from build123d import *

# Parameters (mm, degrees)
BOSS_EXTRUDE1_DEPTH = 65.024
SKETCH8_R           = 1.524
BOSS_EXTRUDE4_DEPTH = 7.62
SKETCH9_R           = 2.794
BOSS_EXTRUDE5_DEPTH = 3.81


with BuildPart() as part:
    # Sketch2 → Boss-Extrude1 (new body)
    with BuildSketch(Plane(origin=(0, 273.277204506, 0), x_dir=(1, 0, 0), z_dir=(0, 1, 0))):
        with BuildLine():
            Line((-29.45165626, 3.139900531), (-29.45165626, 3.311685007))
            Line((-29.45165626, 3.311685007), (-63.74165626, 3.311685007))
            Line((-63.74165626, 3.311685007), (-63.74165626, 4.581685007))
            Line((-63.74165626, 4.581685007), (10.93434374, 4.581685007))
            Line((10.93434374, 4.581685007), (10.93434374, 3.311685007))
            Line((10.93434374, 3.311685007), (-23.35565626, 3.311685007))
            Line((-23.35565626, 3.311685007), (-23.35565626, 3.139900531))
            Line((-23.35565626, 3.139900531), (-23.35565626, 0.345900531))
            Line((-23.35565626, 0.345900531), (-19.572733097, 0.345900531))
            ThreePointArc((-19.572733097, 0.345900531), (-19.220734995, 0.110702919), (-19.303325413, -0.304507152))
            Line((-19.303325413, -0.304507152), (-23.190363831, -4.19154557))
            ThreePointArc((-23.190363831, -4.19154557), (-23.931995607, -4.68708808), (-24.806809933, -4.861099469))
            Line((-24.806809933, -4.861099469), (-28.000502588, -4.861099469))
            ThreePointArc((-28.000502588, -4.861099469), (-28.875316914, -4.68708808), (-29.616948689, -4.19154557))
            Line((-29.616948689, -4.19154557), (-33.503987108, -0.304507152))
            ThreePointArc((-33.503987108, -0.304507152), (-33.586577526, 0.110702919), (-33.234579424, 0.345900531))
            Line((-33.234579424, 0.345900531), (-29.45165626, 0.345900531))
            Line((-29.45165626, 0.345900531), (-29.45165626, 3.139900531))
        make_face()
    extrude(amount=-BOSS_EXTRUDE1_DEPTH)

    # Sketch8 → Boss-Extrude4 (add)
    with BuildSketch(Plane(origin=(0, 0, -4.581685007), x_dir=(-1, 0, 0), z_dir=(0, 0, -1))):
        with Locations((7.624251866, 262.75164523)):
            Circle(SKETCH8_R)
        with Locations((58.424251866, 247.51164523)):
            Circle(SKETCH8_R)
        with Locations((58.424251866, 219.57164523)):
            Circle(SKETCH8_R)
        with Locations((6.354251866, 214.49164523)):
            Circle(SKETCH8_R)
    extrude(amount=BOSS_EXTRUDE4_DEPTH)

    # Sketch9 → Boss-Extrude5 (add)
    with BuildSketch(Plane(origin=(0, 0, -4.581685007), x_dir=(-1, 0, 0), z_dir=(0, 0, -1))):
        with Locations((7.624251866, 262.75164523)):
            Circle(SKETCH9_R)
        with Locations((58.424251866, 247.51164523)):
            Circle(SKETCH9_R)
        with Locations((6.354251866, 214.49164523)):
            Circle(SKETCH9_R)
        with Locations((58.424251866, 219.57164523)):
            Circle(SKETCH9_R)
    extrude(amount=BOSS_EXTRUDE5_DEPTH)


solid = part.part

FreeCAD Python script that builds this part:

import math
import FreeCAD as App
import Part
import Sketcher
from FreeCAD import Vector
Q = App.Units.Quantity

doc = App.newDocument("Part")
body = doc.addObject("PartDesign::Body", "Body")

# Sketch on XZ plane
sketch1 = body.newObject("Sketcher::SketchObject", "Sketch")
sketch1.AttachmentSupport = (doc.getObject("XZ_Plane"), [""])
sketch1.MapMode = "FlatFace"
sketch1.AttachmentOffset = App.Placement(Vector(0, 0, -273.277205), App.Rotation())
sketch1.addGeometry([
    Part.LineSegment(Vector(-63.74, -3.31, 0), Vector(-29.45, -3.31, 0)),  # 0
    Part.LineSegment(Vector(-29.45, -3.31, 0), Vector(-29.45, -0.35, 0)),  # 1
    Part.LineSegment(Vector(-29.45, -0.35, 0), Vector(-33.23, -0.35, 0)),  # 2
    Part.ArcOfCircle(Part.Circle(Vector(-33.23, 0.04, 0), Vector(0, 0, 1), 0.38), math.radians(135), math.radians(270)),  # 3
    Part.LineSegment(Vector(-33.5, 0.3, 0), Vector(-29.62, 4.19, 0)),  # 4
    Part.ArcOfCircle(Part.Circle(Vector(-28, 2.58, 0), Vector(0, 0, 1), 2.29), math.radians(90), math.radians(135)),  # 5
    Part.LineSegment(Vector(-28, 4.86, 0), Vector(-24.81, 4.86, 0)),  # 6
    Part.ArcOfCircle(Part.Circle(Vector(-24.81, 2.58, 0), Vector(0, 0, 1), 2.29), math.radians(45), math.radians(90)),  # 7
    Part.LineSegment(Vector(-23.19, 4.19, 0), Vector(-19.3, 0.3, 0)),  # 8
    Part.ArcOfCircle(Part.Circle(Vector(-19.57, 0.04, 0), Vector(0, 0, 1), 0.38), math.radians(-90), math.radians(45)),  # 9
    Part.LineSegment(Vector(-19.57, -0.35, 0), Vector(-23.36, -0.35, 0)),  # 10
    Part.LineSegment(Vector(-23.36, -0.35, 0), Vector(-23.36, -3.31, 0)),  # 11
    Part.LineSegment(Vector(-23.36, -3.31, 0), Vector(10.93, -3.31, 0)),  # 12
    Part.LineSegment(Vector(10.93, -3.31, 0), Vector(10.93, -4.58, 0)),  # 13
    Part.LineSegment(Vector(10.93, -4.58, 0), Vector(-63.74, -4.58, 0)),  # 14
    Part.LineSegment(Vector(-63.74, -4.58, 0), Vector(-63.74, -3.31, 0)),  # 15
], False)
sketch1.addConstraint([
    Sketcher.Constraint("Coincident", 0, 2, 1, 1),
    Sketcher.Constraint("Coincident", 1, 2, 2, 1),
    Sketcher.Constraint("Tangent", 2, 2, 3, 2),
    Sketcher.Constraint("Tangent", 3, 1, 4, 1),
    Sketcher.Constraint("Tangent", 4, 2, 5, 2),
    Sketcher.Constraint("Tangent", 5, 1, 6, 1),
    Sketcher.Constraint("Tangent", 6, 2, 7, 2),
    Sketcher.Constraint("Tangent", 7, 1, 8, 1),
    Sketcher.Constraint("Tangent", 8, 2, 9, 2),
    Sketcher.Constraint("Tangent", 9, 1, 10, 1),
    Sketcher.Constraint("Coincident", 10, 2, 11, 1),
    Sketcher.Constraint("Coincident", 11, 2, 12, 1),
    Sketcher.Constraint("Coincident", 12, 2, 13, 1),
    Sketcher.Constraint("Coincident", 13, 2, 14, 1),
    Sketcher.Constraint("Coincident", 14, 2, 15, 1),
    Sketcher.Constraint("Coincident", 15, 2, 0, 1),
    Sketcher.Constraint("Horizontal", 0),
    Sketcher.Constraint("Vertical", 1),
    Sketcher.Constraint("Horizontal", 2),
    Sketcher.Constraint("Horizontal", 6),
    Sketcher.Constraint("Horizontal", 10),
    Sketcher.Constraint("Vertical", 11),
    Sketcher.Constraint("Horizontal", 12),
    Sketcher.Constraint("Vertical", 13),
    Sketcher.Constraint("Horizontal", 14),
    Sketcher.Constraint("Vertical", 15),
    Sketcher.Constraint("Equal", 5, 7),
    Sketcher.Constraint("Equal", 3, 9),
    Sketcher.Constraint("Perpendicular", 4, 8),
    Sketcher.Constraint("Horizontal", 3, 3, 9, 3),
    Sketcher.Constraint("Horizontal", 4, 2, 7, 1),
    Sketcher.Constraint("Horizontal", 0, 2, 11, 2),
    Sketcher.Constraint("Equal", 2, 10),
    Sketcher.Constraint("Equal", 0, 12),
    Sketcher.Constraint("Radius", 5, Q("0.09 in")),
    Sketcher.Constraint("Radius", 3, Q("0.015 in")),
    Sketcher.Constraint("DistanceX", 0, 1, 0, 2, Q("1.35 in")),
    Sketcher.Constraint("DistanceX", 14, 2, 14, 1, Q("2.94 in")),
    Sketcher.Constraint("DistanceY", 13, 2, 13, 1, Q("0.05 in")),
    Sketcher.Constraint("DistanceY", 3, 3, 5, 3, Q("0.1 in")),
    Sketcher.Constraint("DistanceY", -1, 1, 3, 3, Q("0.035099 mm")),
    Sketcher.Constraint("DistanceX", 2, 2, 2, 1, Q("3.782923 mm")),
    Sketcher.Constraint("DistanceY", 1, 1, 1, 2, Q("2.965784 mm")),
    Sketcher.Constraint("DistanceX", 3, 3, -1, 1, Q("33.234579 mm")),
])
pad1 = body.newObject("PartDesign::Pad", "Pad")
pad1.Profile = sketch1
pad1.Length = Q("2.56 in")

# Sketch on XY plane
sketch2 = body.newObject("Sketcher::SketchObject", "Sketch001")
sketch2.AttachmentSupport = (doc.getObject("XY_Plane"), [""])
sketch2.MapMode = "FlatFace"
sketch2.AttachmentOffset = App.Placement(Vector(0, 0, -4.581685), App.Rotation())
sketch2.addGeometry([
    Part.Circle(Vector(-7.6, 262.8, 0), Vector(0, 0, 1), 1.5),
    Part.Circle(Vector(-58.4, 247.5, 0), Vector(0, 0, 1), 1.5),
    Part.Circle(Vector(-58.4, 219.6, 0), Vector(0, 0, 1), 1.5),
    Part.Circle(Vector(-6.4, 214.5, 0), Vector(0, 0, 1), 1.5),
], False)
sketch2.addConstraint([
    Sketcher.Constraint("Equal", 0, 1),
    Sketcher.Constraint("Equal", 1, 2),
    Sketcher.Constraint("Equal", 2, 3),
    Sketcher.Constraint("Vertical", 1, 3, 2, 3),
    Sketcher.Constraint("Diameter", 0, Q("0.12 in")),
    Sketcher.Constraint("DistanceX", 1, 3, 0, 3, Q("2 in")),
    Sketcher.Constraint("DistanceY", 1, 3, 0, 3, Q("0.6 in")),
    Sketcher.Constraint("DistanceY", 2, 3, 1, 3, Q("1.1 in")),
    Sketcher.Constraint("DistanceY", 3, 3, 0, 3, Q("1.9 in")),
    Sketcher.Constraint("DistanceX", 0, 3, 3, 3, Q("0.05 in")),
    Sketcher.Constraint("DistanceX", 0, 3, -1, 1, Q("7.624252 mm")),
    Sketcher.Constraint("DistanceY", -1, 1, 0, 3, Q("262.751645 mm")),
])
pad2 = body.newObject("PartDesign::Pad", "Pad001")
pad2.Profile = sketch2
pad2.Length = Q("0.3 in")
pad2.Reversed = True

# Sketch on XY plane
sketch3 = body.newObject("Sketcher::SketchObject", "Sketch002")
sketch3.AttachmentSupport = (doc.getObject("XY_Plane"), [""])
sketch3.MapMode = "FlatFace"
sketch3.AttachmentOffset = App.Placement(Vector(0, 0, -4.581685), App.Rotation())
sketch3.addGeometry([
    Part.Circle(Vector(-7.6, 262.8, 0), Vector(0, 0, 1), 2.8),
    Part.Circle(Vector(-58.4, 247.5, 0), Vector(0, 0, 1), 2.8),
    Part.Circle(Vector(-6.4, 214.5, 0), Vector(0, 0, 1), 2.8),
    Part.Circle(Vector(-58.4, 219.6, 0), Vector(0, 0, 1), 2.8),
], False)
sketch3.addConstraint([
    Sketcher.Constraint("Equal", 0, 1),
    Sketcher.Constraint("Equal", 1, 2),
    Sketcher.Constraint("Equal", 2, 3),
    Sketcher.Constraint("Vertical", 1, 3, 3, 3),
    Sketcher.Constraint("Diameter", 0, Q("0.22 in")),
    Sketcher.Constraint("DistanceX", 1, 3, 0, 3, Q("2 in")),
    Sketcher.Constraint("DistanceY", 1, 3, 0, 3, Q("0.6 in")),
    Sketcher.Constraint("DistanceY", 2, 3, 0, 3, Q("1.9 in")),
    Sketcher.Constraint("DistanceY", 3, 3, 1, 3, Q("1.1 in")),
    Sketcher.Constraint("DistanceX", 0, 3, 2, 3, Q("0.05 in")),
    Sketcher.Constraint("DistanceX", 0, 3, -1, 1, Q("7.624252 mm")),
    Sketcher.Constraint("DistanceY", -1, 1, 0, 3, Q("262.751645 mm")),
])
pad3 = body.newObject("PartDesign::Pad", "Pad002")
pad3.Profile = sketch3
pad3.Length = Q("0.15 in")
pad3.Reversed = True

doc.recompute()
